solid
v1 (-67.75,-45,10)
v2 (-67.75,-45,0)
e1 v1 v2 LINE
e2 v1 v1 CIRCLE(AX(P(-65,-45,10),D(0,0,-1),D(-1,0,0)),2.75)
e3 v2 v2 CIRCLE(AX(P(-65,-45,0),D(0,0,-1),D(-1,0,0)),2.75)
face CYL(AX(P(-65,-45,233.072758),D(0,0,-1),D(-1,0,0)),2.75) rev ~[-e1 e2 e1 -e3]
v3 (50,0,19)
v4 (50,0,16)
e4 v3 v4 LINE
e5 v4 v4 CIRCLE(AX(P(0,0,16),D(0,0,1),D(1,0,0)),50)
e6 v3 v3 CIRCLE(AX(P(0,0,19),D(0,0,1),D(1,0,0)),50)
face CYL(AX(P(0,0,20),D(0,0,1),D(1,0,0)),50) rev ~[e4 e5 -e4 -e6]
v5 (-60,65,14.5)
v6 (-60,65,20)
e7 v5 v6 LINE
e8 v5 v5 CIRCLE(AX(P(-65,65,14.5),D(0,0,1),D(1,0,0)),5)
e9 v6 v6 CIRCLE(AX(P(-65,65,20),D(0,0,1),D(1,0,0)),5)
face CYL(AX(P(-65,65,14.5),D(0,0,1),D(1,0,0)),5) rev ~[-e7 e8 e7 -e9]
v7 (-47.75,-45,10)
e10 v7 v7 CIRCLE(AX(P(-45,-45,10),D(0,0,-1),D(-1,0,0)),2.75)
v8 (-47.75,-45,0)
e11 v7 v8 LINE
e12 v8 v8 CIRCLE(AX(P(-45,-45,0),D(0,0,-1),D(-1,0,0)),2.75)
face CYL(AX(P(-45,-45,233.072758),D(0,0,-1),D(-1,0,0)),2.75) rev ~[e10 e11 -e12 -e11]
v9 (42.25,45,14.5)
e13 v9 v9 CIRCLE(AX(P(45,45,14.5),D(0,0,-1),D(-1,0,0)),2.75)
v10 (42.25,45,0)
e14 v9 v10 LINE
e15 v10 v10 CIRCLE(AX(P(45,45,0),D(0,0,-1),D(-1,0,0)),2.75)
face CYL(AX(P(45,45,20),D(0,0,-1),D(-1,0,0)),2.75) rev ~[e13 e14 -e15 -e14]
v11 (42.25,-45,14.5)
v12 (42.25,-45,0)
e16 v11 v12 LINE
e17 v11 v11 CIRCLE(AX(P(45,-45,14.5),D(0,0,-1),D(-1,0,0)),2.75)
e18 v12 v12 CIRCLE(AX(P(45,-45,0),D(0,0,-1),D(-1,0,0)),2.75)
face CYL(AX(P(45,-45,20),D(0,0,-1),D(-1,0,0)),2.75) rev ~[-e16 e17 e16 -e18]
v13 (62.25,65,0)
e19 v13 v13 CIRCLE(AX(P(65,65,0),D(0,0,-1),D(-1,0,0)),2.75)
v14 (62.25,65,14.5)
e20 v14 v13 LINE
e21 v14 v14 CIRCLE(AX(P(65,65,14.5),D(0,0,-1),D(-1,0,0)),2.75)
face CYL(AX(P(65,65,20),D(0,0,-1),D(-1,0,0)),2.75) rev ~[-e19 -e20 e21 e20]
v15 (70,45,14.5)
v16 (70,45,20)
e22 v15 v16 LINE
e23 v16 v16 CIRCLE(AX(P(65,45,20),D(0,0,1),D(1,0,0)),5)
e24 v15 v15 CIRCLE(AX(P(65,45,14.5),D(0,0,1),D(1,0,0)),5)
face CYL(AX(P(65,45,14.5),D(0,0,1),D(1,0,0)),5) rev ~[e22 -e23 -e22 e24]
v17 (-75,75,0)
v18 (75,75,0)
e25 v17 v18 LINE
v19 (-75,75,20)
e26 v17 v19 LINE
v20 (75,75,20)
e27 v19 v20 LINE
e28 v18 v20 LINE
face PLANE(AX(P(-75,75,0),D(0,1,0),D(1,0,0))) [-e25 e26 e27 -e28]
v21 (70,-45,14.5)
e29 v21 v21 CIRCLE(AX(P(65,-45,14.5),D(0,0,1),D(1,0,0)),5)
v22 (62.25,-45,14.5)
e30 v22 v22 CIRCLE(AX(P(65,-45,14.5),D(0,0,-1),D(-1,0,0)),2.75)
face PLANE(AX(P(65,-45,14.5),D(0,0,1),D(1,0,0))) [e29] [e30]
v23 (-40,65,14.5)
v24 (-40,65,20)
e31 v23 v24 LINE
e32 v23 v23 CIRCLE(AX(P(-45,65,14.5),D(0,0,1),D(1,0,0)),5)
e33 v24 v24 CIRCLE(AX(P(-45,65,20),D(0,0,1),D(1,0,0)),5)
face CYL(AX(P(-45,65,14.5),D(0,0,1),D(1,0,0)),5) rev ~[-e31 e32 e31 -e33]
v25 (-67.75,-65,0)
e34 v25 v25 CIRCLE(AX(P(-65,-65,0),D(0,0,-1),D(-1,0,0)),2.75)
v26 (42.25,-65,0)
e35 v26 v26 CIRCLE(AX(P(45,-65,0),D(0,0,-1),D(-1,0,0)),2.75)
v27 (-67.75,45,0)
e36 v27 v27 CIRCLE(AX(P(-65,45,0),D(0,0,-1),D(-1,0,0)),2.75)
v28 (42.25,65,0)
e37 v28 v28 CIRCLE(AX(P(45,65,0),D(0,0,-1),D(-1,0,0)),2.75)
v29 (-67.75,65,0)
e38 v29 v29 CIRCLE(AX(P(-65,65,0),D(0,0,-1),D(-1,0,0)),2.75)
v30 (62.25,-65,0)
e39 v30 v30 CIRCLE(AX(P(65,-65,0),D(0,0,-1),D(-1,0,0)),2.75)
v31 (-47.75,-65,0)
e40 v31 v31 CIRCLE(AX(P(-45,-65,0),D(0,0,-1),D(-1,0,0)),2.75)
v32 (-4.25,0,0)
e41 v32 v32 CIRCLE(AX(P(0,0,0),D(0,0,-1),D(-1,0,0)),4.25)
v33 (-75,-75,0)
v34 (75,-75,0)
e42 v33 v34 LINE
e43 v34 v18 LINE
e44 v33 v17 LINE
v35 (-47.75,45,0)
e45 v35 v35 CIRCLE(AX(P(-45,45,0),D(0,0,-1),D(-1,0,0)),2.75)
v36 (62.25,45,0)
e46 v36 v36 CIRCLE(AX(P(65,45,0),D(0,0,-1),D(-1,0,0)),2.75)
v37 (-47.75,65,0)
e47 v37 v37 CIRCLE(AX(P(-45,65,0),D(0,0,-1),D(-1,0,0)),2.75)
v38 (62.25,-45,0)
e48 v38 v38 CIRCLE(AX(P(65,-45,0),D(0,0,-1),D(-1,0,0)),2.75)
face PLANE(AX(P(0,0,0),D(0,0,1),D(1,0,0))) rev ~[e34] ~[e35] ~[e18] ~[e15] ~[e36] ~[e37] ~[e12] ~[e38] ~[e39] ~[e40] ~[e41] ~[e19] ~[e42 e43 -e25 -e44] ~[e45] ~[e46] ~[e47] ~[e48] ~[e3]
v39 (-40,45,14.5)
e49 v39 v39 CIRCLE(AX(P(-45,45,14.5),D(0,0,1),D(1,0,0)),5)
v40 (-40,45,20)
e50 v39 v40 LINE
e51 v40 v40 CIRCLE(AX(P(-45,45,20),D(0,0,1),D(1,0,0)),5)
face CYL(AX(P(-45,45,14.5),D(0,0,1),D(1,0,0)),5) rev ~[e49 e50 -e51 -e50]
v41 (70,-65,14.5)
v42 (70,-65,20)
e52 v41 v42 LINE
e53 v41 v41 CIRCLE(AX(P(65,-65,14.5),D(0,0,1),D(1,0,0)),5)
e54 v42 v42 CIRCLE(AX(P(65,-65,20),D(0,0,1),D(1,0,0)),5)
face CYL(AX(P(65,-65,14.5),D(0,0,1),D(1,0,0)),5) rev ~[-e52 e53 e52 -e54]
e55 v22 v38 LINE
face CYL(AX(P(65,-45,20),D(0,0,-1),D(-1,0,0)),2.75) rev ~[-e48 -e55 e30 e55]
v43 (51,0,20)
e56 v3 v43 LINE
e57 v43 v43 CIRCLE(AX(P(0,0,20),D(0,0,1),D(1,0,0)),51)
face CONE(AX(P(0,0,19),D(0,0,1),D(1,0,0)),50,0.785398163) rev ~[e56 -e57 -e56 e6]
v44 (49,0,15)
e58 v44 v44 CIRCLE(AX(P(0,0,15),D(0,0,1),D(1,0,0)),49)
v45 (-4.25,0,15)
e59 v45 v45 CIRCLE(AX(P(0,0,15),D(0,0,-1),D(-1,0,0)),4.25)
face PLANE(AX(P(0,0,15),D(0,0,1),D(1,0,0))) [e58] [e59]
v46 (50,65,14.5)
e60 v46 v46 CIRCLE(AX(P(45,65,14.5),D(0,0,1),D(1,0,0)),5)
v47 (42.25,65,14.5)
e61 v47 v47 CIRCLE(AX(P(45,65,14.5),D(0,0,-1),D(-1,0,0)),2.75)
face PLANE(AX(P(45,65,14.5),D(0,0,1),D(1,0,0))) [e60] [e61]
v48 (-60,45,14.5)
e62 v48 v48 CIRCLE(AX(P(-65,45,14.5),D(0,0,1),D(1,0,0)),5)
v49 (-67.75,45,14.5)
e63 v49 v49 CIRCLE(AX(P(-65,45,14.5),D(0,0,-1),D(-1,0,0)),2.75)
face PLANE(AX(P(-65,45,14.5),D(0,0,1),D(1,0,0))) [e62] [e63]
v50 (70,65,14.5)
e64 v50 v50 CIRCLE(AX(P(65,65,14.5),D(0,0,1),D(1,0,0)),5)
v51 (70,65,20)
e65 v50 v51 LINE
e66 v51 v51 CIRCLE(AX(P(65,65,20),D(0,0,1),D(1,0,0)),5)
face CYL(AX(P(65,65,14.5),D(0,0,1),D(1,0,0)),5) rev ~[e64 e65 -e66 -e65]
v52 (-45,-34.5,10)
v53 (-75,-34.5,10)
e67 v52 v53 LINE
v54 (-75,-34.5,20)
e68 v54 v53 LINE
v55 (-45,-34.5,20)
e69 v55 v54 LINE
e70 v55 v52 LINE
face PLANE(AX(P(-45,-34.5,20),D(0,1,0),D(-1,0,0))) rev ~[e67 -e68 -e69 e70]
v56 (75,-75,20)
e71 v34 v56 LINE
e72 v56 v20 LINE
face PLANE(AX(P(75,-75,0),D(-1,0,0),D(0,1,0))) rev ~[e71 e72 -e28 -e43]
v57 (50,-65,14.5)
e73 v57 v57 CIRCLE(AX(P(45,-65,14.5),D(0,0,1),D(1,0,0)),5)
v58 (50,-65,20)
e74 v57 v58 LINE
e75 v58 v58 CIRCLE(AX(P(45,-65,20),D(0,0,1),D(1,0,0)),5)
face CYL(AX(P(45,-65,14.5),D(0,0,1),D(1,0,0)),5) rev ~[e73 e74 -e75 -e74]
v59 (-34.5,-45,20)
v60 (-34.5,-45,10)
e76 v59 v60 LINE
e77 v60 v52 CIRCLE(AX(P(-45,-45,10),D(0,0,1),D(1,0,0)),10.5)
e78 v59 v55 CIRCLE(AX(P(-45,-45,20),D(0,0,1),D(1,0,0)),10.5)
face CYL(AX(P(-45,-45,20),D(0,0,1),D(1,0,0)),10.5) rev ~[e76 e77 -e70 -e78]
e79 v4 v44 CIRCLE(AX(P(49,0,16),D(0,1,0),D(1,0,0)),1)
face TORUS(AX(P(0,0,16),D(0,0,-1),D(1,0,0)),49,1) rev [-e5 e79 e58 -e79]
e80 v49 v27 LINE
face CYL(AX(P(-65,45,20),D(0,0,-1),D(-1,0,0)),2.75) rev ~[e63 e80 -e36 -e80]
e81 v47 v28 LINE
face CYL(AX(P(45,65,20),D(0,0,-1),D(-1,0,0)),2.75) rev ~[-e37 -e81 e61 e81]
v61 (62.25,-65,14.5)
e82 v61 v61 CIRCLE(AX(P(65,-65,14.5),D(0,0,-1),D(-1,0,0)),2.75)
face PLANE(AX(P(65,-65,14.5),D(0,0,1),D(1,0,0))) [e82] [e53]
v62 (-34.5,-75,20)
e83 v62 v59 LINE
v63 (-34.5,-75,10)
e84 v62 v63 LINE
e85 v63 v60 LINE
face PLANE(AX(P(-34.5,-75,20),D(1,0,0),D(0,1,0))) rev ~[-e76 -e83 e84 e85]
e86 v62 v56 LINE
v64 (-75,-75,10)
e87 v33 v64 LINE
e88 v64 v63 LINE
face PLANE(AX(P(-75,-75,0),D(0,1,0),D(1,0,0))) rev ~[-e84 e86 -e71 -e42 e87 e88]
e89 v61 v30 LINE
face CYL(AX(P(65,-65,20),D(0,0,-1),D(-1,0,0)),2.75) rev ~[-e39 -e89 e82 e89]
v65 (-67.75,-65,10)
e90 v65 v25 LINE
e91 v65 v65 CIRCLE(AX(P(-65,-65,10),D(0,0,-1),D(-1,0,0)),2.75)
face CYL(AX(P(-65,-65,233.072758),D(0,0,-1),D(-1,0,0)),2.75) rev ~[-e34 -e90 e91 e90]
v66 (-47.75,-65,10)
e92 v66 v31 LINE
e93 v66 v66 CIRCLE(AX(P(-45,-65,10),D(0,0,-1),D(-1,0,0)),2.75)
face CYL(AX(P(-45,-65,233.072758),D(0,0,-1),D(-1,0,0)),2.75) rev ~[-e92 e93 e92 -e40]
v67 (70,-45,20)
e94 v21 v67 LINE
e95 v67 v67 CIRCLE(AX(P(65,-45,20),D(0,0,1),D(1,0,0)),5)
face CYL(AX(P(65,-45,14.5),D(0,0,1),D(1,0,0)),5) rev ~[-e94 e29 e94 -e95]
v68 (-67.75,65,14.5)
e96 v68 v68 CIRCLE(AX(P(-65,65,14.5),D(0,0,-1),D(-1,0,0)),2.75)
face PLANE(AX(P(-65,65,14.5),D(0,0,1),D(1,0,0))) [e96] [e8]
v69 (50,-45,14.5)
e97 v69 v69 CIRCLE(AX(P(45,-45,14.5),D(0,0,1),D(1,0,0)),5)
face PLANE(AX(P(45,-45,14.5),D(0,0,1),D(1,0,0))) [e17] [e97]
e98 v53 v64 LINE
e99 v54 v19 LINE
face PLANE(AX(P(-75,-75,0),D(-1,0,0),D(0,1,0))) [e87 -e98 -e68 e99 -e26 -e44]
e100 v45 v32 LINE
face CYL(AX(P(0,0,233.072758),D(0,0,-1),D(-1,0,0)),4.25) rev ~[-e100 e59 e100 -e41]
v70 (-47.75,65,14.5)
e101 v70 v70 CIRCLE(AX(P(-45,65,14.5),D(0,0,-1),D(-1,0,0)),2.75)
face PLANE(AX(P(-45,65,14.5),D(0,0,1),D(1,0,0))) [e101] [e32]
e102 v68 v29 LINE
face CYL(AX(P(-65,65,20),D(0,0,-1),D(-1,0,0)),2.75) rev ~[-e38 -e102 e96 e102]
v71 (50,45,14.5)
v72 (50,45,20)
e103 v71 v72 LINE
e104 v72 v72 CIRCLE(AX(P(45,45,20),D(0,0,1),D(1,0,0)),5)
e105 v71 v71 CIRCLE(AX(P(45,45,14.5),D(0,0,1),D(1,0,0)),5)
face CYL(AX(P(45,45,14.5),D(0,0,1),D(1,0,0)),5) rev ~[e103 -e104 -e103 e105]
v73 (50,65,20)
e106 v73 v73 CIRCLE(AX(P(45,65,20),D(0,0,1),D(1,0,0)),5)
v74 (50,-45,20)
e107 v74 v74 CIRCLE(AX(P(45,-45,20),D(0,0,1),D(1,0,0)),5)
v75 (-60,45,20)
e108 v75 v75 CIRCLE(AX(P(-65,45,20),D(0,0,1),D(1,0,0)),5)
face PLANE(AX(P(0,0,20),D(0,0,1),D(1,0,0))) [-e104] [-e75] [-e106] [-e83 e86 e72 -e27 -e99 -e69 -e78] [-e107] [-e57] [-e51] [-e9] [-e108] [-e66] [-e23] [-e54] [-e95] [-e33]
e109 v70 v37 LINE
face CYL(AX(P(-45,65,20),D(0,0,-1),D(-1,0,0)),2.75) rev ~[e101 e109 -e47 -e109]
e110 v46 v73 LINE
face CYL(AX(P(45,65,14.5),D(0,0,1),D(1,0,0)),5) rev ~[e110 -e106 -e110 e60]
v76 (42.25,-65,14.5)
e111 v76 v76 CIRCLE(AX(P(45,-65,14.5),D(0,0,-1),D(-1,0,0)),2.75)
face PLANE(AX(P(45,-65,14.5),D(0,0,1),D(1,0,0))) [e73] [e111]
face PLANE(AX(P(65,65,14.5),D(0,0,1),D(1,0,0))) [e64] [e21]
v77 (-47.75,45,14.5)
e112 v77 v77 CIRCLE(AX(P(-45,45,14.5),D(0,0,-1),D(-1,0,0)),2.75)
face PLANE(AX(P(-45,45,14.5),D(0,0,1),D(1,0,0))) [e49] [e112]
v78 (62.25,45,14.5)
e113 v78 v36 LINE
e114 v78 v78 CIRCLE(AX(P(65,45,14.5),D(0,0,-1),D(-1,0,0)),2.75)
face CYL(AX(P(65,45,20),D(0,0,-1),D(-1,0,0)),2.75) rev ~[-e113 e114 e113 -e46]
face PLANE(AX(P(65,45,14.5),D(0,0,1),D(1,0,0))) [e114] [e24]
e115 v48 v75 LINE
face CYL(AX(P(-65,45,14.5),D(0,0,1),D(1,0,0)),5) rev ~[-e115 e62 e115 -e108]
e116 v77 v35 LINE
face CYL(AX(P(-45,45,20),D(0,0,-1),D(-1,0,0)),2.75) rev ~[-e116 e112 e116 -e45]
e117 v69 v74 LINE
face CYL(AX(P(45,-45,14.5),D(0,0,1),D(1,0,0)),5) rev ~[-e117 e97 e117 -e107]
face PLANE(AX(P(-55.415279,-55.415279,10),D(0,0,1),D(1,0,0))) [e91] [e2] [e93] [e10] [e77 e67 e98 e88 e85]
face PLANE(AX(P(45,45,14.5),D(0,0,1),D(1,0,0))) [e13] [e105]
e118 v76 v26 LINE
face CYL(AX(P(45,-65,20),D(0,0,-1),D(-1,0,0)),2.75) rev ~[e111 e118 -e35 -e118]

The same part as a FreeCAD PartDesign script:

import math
import FreeCAD as App
import Part
import Sketcher
from FreeCAD import Vector


def edges_at(feature, points):
    """Names of the edges that pass closest to the given points."""
    edges = feature.Shape.Edges
    near = lambda p: min(range(len(edges)), key=lambda i: edges[i].distToShape(Part.Vertex(*p))[0])
    return sorted({f"Edge{near(p) + 1}" for p in points})

doc = App.newDocument("Part")
params = doc.addObject("Spreadsheet::Sheet", "Params")
for row, (alias, value) in enumerate([
    ("sketch1_width", "150 mm"),
    ("pad1_length", "20 mm"),
    ("sketch2_diameter", "8.5 mm"),
    ("hole_diameter", "8.5 mm"),
    ("sketch3_diameter", "5.5 mm"),
    ("hole2_diameter", "5.5 mm"),
    ("hole2_cbore_diameter", "10 mm"),
    ("hole2_cbore_depth", "5.5 mm"),
    ("sketch4_diameter", "5.5 mm"),
    ("hole3_diameter", "5.5 mm"),
    ("sketch5_diameter", "100 mm"),
    ("pocket1_length", "5 mm"),
    ("fillet_radius", "1 mm"),
    ("chamfer_size", "1 mm"),
    ("sketch6_radius", "10.5 mm"),
    ("sketch6_width", "30 mm"),
    ("pocket2_length", "10 mm"),
], start=1):
    params.set(f"A{row}", alias)
    params.set(f"B{row}", "=" + value)
    params.setAlias(f"B{row}", alias)

body = doc.addObject("PartDesign::Body", "Body")

sketch1 = body.newObject("Sketcher::SketchObject", "Sketch")
sketch1.AttachmentSupport = (doc.getObject("XY_Plane"), [""])
sketch1.MapMode = "FlatFace"
sketch1.addGeometry(Part.LineSegment(Vector(-75, 75, 0), Vector(-75, -75, 0)), False)
sketch1.addGeometry(Part.LineSegment(Vector(-75, -75, 0), Vector(75, -75, 0)), False)
sketch1.addGeometry(Part.LineSegment(Vector(75, -75, 0), Vector(75, 75, 0)), False)
sketch1.addGeometry(Part.LineSegment(Vector(75, 75, 0), Vector(-75, 75, 0)), False)
sketch1.addConstraint(Sketcher.Constraint("Coincident", 0, 2, 1, 1))
sketch1.addConstraint(Sketcher.Constraint("Coincident", 1, 2, 2, 1))
sketch1.addConstraint(Sketcher.Constraint("Coincident", 2, 2, 3, 1))
sketch1.addConstraint(Sketcher.Constraint("Coincident", 3, 2, 0, 1))
sketch1.addConstraint(Sketcher.Constraint("Vertical", 0))
sketch1.addConstraint(Sketcher.Constraint("Horizontal", 1))
sketch1.addConstraint(Sketcher.Constraint("Vertical", 2))
sketch1.addConstraint(Sketcher.Constraint("Horizontal", 3))
sketch1.addConstraint(Sketcher.Constraint("Symmetric", 0, 2, 2, 2, -1, 1))
sketch1.addConstraint(Sketcher.Constraint("Equal", 3, 0))
sketch1.addConstraint(Sketcher.Constraint("DistanceX", 1, 1, 1, 2, 150.0))
sketch1.setExpression("Constraints[10]", "Params.sketch1_width")
pad1 = body.newObject("PartDesign::Pad", "Pad")
pad1.Profile = sketch1
pad1.setExpression("Length", "Params.pad1_length")

sketch2 = body.newObject("Sketcher::SketchObject", "Sketch001")
sketch2.AttachmentSupport = (doc.getObject("XY_Plane"), [""])
sketch2.MapMode = "FlatFace"
sketch2.AttachmentOffset = App.Placement(Vector(0, 0, 20), App.Rotation())
sketch2.addGeometry(Part.Circle(Vector(0, 0, 0), Vector(0, 0, 1), 4.2), False)
sketch2.addConstraint(Sketcher.Constraint("Coincident", 0, 3, -1, 1))
sketch2.addConstraint(Sketcher.Constraint("Diameter", 0, 8.5))
sketch2.setExpression("Constraints[1]", "Params.sketch2_diameter")
doc.recompute()
hole = body.newObject("PartDesign::Hole", "Hole")
hole.Profile = sketch2
hole.ThreadType = "None"
hole.setExpression("Diameter", "Params.hole_diameter")
hole.DepthType = "ThroughAll"

sketch3 = body.newObject("Sketcher::SketchObject", "Sketch002")
sketch3.AttachmentSupport = (doc.getObject("XY_Plane"), [""])
sketch3.MapMode = "FlatFace"
sketch3.AttachmentOffset = App.Placement(Vector(0, 0, 20), App.Rotation())
sketch3.addGeometry(Part.Circle(Vector(-65, 65, 0), Vector(0, 0, 1), 2.8), False)
sketch3.addGeometry(Part.Circle(Vector(-45, 65, 0), Vector(0, 0, 1), 2.8), False)
sketch3.addGeometry(Part.Circle(Vector(-65, 45, 0), Vector(0, 0, 1), 2.8), False)
sketch3.addGeometry(Part.Circle(Vector(65, -45, 0), Vector(0, 0, 1), 2.8), False)
sketch3.addGeometry(Part.Circle(Vector(65, -65, 0), Vector(0, 0, 1), 2.8), False)
sketch3.addGeometry(Part.Circle(Vector(45, -65, 0), Vector(0, 0, 1), 2.8), False)
sketch3.addGeometry(Part.Circle(Vector(45, 65, 0), Vector(0, 0, 1), 2.8), False)
sketch3.addGeometry(Part.Circle(Vector(65, 65, 0), Vector(0, 0, 1), 2.8), False)
sketch3.addGeometry(Part.Circle(Vector(65, 45, 0), Vector(0, 0, 1), 2.8), False)
sketch3.addGeometry(Part.Circle(Vector(45, -45, 0), Vector(0, 0, 1), 2.8), False)
sketch3.addGeometry(Part.Circle(Vector(-45, 45, 0), Vector(0, 0, 1), 2.8), False)
sketch3.addGeometry(Part.Circle(Vector(45, 45, 0), Vector(0, 0, 1), 2.8), False)
sketch3.addConstraint(Sketcher.Constraint("Equal", 0, 1))
sketch3.addConstraint(Sketcher.Constraint("Equal", 1, 2))
sketch3.addConstraint(Sketcher.Constraint("Equal", 2, 3))
sketch3.addConstraint(Sketcher.Constraint("Equal", 3, 4))
sketch3.addConstraint(Sketcher.Constraint("Equal", 4, 5))
sketch3.addConstraint(Sketcher.Constraint("Equal", 5, 6))
sketch3.addConstraint(Sketcher.Constraint("Equal", 6, 7))
sketch3.addConstraint(Sketcher.Constraint("Equal", 7, 8))
sketch3.addConstraint(Sketcher.Constraint("Equal", 8, 9))
sketch3.addConstraint(Sketcher.Constraint("Equal", 9, 10))
sketch3.addConstraint(Sketcher.Constraint("Equal", 10, 11))
sketch3.addConstraint(Sketcher.Constraint("Symmetric", 2, 3, 3, 3, -1, 1))
sketch3.addConstraint(Sketcher.Constraint("Symmetric", 0, 3, 4, 3, -1, 1))
sketch3.addConstraint(Sketcher.Constraint("Symmetric", 1, 3, 5, 3, -1, 1))
sketch3.addConstraint(Sketcher.Constraint("Symmetric", 9, 3, 10, 3, -1, 1))
sketch3.addConstraint(Sketcher.Constraint("Symmetric", 1, 3, 6, 3, -2))
sketch3.addConstraint(Sketcher.Constraint("Symmetric", 0, 3, 7, 3, -2))
sketch3.addConstraint(Sketcher.Constraint("Symmetric", 2, 3, 8, 3, -2))
sketch3.addConstraint(Sketcher.Constraint("Symmetric", 10, 3, 11, 3, -2))
sketch3.addConstraint(Sketcher.Constraint("Horizontal", 0, 3, 1, 3))
sketch3.addConstraint(Sketcher.Constraint("Horizontal", 3, 3, 9, 3))
sketch3.addConstraint(Sketcher.Constraint("Vertical", 0, 3, 2, 3))
sketch3.addConstraint(Sketcher.Constraint("Vertical", 6, 3, 9, 3))
sketch3.addConstraint(Sketcher.Constraint("Diameter", 0, 5.5))
sketch3.addConstraint(Sketcher.Constraint("DistanceX", 0, 3, -1, 1, 65.0))
sketch3.addConstraint(Sketcher.Constraint("DistanceY", -1, 1, 0, 3, 65.0))
sketch3.addConstraint(Sketcher.Constraint("DistanceX", 1, 3, -1, 1, 45.0))
sketch3.addConstraint(Sketcher.Constraint("DistanceY", -1, 1, 2, 3, 45.0))
sketch3.setExpression("Constraints[23]", "Params.sketch3_diameter")
doc.recompute()
hole2 = body.newObject("PartDesign::Hole", "Hole001")
hole2.Profile = sketch3
hole2.ThreadType = "None"
hole2.setExpression("Diameter", "Params.hole2_diameter")
hole2.DepthType = "ThroughAll"
hole2.HoleCutType = "Counterbore"
hole2.setExpression("HoleCutDiameter", "Params.hole2_cbore_diameter")
hole2.setExpression("HoleCutDepth", "Params.hole2_cbore_depth")

sketch4 = body.newObject("Sketcher::SketchObject", "Sketch003")
sketch4.AttachmentSupport = (doc.getObject("XY_Plane"), [""])
sketch4.MapMode = "FlatFace"
sketch4.AttachmentOffset = App.Placement(Vector(0, 0, 20), App.Rotation())
sketch4.addGeometry(Part.Circle(Vector(-65, -45, 0), Vector(0, 0, 1), 2.8), False)
sketch4.addGeometry(Part.Circle(Vector(-45, -45, 0), Vector(0, 0, 1), 2.8), False)
sketch4.addGeometry(Part.Circle(Vector(-45, -65, 0), Vector(0, 0, 1), 2.8), False)
sketch4.addGeometry(Part.Circle(Vector(-65, -65, 0), Vector(0, 0, 1), 2.8), False)
sketch4.addConstraint(Sketcher.Constraint("Equal", 0, 1))
sketch4.addConstraint(Sketcher.Constraint("Equal", 1, 2))
sketch4.addConstraint(Sketcher.Constraint("Equal", 2, 3))
sketch4.addConstraint(Sketcher.Constraint("Horizontal", 0, 3, 1, 3))
sketch4.addConstraint(Sketcher.Constraint("Horizontal", 2, 3, 3, 3))
sketch4.addConstraint(Sketcher.Constraint("Vertical", 1, 3, 2, 3))
sketch4.addConstraint(Sketcher.Constraint("Vertical", 0, 3, 3, 3))
sketch4.addConstraint(Sketcher.Constraint("Diameter", 0, 5.5))
sketch4.addConstraint(Sketcher.Constraint("DistanceX", 0, 3, -1, 1, 65.0))
sketch4.addConstraint(Sketcher.Constraint("DistanceY", 0, 3, -1, 1, 45.0))
sketch4.addConstraint(Sketcher.Constraint("DistanceX", 1, 3, -1, 1, 45.0))
sketch4.addConstraint(Sketcher.Constraint("DistanceY", 2, 3, -1, 1, 65.0))
sketch4.setExpression("Constraints[7]", "Params.sketch4_diameter")
doc.recompute()
hole3 = body.newObject("PartDesign::Hole", "Hole002")
hole3.Profile = sketch4
hole3.ThreadType = "None"
hole3.setExpression("Diameter", "Params.hole3_diameter")
hole3.DepthType = "ThroughAll"

sketch5 = body.newObject("Sketcher::SketchObject", "Sketch004")
sketch5.AttachmentSupport = (doc.getObject("XY_Plane"), [""])
sketch5.MapMode = "FlatFace"
sketch5.AttachmentOffset = App.Placement(Vector(0, 0, 20), App.Rotation())
sketch5.addGeometry(Part.Circle(Vector(0, 0, 0), Vector(0, 0, 1), 50), False)
sketch5.addConstraint(Sketcher.Constraint("Coincident", 0, 3, -1, 1))
sketch5.addConstraint(Sketcher.Constraint("Diameter", 0, 100.0))
sketch5.setExpression("Constraints[1]", "Params.sketch5_diameter")
pocket1 = body.newObject("PartDesign::Pocket", "Pocket")
pocket1.Profile = sketch5
pocket1.setExpression("Length", "Params.pocket1_length")
doc.recompute()

fillet = body.newObject("PartDesign::Fillet", "Fillet")
fillet.Base = (pocket1, edges_at(pocket1, [(-50, 0, 15)]))
fillet.setExpression("Radius", "Params.fillet_radius")
doc.recompute()

chamfer = body.newObject("PartDesign::Chamfer", "Chamfer")
chamfer.Base = (fillet, edges_at(fillet, [(-50, 0, 20)]))
chamfer.setExpression("Size", "Params.chamfer_size")

sketch6 = body.newObject("Sketcher::SketchObject", "Sketch005")
sketch6.AttachmentSupport = (doc.getObject("XY_Plane"), [""])
sketch6.MapMode = "FlatFace"
sketch6.AttachmentOffset = App.Placement(Vector(0, 0, 20), App.Rotation())
sketch6.addGeometry(Part.LineSegment(Vector(-75, -75, 0), Vector(-34, -75, 0)), False)
sketch6.addGeometry(Part.LineSegment(Vector(-34, -75, 0), Vector(-34, -45, 0)), False)
sketch6.addGeometry(Part.ArcOfCircle(Part.Circle(Vector(-45, -45, 0), Vector(0, 0, 1), 11), math.radians(0), math.radians(90)), False)
sketch6.addGeometry(Part.LineSegment(Vector(-45, -34, 0), Vector(-75, -34, 0)), False)
sketch6.addGeometry(Part.LineSegment(Vector(-75, -34, 0), Vector(-75, -75, 0)), False)
sketch6.addConstraint(Sketcher.Constraint("Coincident", 0, 2, 1, 1))
sketch6.addConstraint(Sketcher.Constraint("Tangent", 1, 2, 2, 1))
sketch6.addConstraint(Sketcher.Constraint("Tangent", 2, 2, 3, 1))
sketch6.addConstraint(Sketcher.Constraint("Coincident", 3, 2, 4, 1))
sketch6.addConstraint(Sketcher.Constraint("Coincident", 4, 2, 0, 1))
sketch6.addConstraint(Sketcher.Constraint("Horizontal", 0))
sketch6.addConstraint(Sketcher.Constraint("Vertical", 1))
sketch6.addConstraint(Sketcher.Constraint("Horizontal", 3))
sketch6.addConstraint(Sketcher.Constraint("Vertical", 4))
sketch6.addConstraint(Sketcher.Constraint("Equal", 3, 1))
sketch6.addConstraint(Sketcher.Constraint("Radius", 2, 10.5))
sketch6.addConstraint(Sketcher.Constraint("DistanceX", 3, 2, 3, 1, 30.0))
sketch6.addConstraint(Sketcher.Constraint("DistanceX", 2, 3, -1, 1, 45.0))
sketch6.addConstraint(Sketcher.Constraint("DistanceY", 2, 3, -1, 1, 45.0))
sketch6.setExpression("Constraints[10]", "Params.sketch6_radius")
sketch6.setExpression("Constraints[11]", "Params.sketch6_width")
pocket2 = body.newObject("PartDesign::Pocket", "Pocket001")
pocket2.Profile = sketch6
pocket2.setExpression("Length", "Params.pocket2_length")

doc.recompute()
